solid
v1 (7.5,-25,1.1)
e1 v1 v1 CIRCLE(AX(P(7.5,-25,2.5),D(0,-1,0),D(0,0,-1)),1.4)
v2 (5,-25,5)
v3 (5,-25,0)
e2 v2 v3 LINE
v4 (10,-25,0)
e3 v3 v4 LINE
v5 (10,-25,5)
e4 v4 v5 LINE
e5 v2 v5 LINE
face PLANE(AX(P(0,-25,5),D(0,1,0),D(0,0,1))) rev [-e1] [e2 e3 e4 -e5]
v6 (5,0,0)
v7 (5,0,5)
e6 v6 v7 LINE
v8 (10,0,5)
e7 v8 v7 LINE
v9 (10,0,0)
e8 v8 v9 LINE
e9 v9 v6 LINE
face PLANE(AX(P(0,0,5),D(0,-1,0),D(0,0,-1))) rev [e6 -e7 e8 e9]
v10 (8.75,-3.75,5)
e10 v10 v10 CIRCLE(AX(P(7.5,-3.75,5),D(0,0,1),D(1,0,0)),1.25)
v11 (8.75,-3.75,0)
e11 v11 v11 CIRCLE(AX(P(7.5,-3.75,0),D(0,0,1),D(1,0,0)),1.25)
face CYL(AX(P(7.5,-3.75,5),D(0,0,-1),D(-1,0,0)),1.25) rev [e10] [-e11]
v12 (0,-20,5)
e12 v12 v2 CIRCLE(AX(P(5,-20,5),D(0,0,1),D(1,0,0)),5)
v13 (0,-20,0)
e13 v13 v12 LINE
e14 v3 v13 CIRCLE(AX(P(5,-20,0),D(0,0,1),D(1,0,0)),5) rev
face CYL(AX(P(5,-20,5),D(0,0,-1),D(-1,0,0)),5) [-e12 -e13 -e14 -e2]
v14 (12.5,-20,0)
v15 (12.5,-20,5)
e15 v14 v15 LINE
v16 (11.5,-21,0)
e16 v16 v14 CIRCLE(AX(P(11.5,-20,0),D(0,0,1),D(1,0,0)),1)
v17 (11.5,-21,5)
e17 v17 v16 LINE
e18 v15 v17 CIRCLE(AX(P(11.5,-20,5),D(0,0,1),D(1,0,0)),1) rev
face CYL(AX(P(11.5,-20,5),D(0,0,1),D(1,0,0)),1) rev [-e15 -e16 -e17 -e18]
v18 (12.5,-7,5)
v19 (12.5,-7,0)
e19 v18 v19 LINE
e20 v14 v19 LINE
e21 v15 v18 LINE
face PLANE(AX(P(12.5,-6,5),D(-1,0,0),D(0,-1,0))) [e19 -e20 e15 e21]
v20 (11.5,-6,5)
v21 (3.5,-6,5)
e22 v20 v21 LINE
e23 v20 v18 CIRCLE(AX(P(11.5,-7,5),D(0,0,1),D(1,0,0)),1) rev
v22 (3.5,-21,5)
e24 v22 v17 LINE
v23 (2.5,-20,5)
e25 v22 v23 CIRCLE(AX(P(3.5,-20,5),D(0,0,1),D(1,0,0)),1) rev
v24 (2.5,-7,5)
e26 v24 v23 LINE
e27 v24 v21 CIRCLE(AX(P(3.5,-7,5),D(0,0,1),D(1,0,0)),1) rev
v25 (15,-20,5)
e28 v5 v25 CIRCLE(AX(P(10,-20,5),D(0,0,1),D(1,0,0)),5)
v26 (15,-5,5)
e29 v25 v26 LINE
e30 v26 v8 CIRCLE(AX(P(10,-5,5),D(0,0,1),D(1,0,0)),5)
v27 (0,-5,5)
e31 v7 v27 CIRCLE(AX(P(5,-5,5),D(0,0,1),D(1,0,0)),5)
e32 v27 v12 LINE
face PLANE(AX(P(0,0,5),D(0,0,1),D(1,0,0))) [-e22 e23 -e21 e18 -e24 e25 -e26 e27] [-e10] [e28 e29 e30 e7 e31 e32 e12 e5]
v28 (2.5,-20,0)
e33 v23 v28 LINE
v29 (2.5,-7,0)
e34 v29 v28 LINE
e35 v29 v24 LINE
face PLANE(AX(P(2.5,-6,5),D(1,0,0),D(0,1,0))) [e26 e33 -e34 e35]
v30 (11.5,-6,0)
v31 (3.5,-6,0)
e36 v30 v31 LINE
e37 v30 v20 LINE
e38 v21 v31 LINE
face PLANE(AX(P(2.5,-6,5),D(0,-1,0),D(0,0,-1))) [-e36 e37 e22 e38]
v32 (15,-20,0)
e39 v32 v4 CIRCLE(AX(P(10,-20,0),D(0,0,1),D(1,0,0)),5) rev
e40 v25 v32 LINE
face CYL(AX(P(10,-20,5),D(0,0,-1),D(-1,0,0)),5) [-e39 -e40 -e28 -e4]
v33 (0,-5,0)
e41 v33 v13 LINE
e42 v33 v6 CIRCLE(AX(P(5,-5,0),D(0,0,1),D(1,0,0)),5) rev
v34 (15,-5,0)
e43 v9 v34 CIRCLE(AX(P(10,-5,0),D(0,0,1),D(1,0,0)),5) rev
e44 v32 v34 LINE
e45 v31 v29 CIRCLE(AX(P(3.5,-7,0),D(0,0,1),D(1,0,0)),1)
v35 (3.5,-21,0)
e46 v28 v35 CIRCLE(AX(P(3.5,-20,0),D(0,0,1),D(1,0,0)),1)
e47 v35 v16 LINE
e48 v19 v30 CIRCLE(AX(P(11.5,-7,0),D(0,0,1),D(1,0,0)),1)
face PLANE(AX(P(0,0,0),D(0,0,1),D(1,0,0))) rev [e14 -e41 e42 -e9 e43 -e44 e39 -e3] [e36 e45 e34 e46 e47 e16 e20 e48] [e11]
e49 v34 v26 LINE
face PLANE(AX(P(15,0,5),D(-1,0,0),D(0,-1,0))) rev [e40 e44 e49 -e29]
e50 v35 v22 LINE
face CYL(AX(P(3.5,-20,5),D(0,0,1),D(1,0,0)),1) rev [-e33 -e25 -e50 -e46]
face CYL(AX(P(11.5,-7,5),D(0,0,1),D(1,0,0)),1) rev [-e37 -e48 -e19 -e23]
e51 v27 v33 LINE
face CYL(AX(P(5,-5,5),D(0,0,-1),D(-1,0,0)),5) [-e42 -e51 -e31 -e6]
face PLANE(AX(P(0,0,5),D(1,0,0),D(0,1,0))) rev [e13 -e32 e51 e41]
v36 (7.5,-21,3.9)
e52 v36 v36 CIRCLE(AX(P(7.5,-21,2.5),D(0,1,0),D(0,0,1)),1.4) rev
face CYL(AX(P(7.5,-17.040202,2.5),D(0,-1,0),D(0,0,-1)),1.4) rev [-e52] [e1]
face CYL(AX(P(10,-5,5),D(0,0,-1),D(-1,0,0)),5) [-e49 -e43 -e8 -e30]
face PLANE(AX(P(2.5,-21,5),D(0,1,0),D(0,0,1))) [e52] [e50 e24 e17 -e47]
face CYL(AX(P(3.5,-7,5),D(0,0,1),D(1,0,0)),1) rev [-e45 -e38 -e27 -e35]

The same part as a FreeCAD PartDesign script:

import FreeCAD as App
import Part
import Sketcher


def edges_at(feature, points):
    """Names of the edges that pass closest to the given points."""
    edges = feature.Shape.Edges
    near = lambda p: min(range(len(edges)), key=lambda i: edges[i].distToShape(Part.Vertex(*p))[0])
    return sorted({f"Edge{near(p) + 1}" for p in points})


def add_polygon(sketch, points):
    """Adds a closed chain of lines whose ends are joined by coincident constraints."""
    first, n = sketch.GeometryCount, len(points)
    for a, b in zip(points, points[1:] + points[:1]):
        sketch.addGeometry(Part.LineSegment(App.Vector(*a, 0), App.Vector(*b, 0)), False)
    for i in range(n):
        sketch.addConstraint(Sketcher.Constraint("Coincident", first + i, 2, first + (i + 1) % n, 1))

doc = App.newDocument("Part")
body = doc.addObject("PartDesign::Body", "Body")

# Sketch on XY plane
sketch1 = body.newObject("Sketcher::SketchObject", "Sketch")
sketch1.AttachmentSupport = (doc.getObject("XY_Plane"), [""])
sketch1.MapMode = "FlatFace"
add_polygon(sketch1, [(0, 0), (0, -25), (15, -25), (15, 0)])  # lines 0-3
add_polygon(sketch1, [(12.5, -21), (2.5, -21), (2.5, -6), (12.5, -6)])  # lines 4-7
sketch1.addGeometry(Part.Circle(App.Vector(7.5, -3.8, 0), App.Vector(0, 0, 1), 1.2), False)  # 8
sketch1.addConstraint([
    Sketcher.Constraint("Vertical", 0),
    Sketcher.Constraint("Horizontal", 1),
    Sketcher.Constraint("Vertical", 2),
    Sketcher.Constraint("Horizontal", 3),
    Sketcher.Constraint("Horizontal", 4),
    Sketcher.Constraint("Vertical", 5),
    Sketcher.Constraint("Horizontal", 6),
    Sketcher.Constraint("Vertical", 7),
    Sketcher.Constraint("Coincident", 3, 2, -1, 1),
    Sketcher.Constraint("Equal", 3, 5),
    Sketcher.Constraint("Diameter", 8, 2.5),
    Sketcher.Constraint("DistanceX", 1, 1, 1, 2, 15.0),
    Sketcher.Constraint("DistanceX", 4, 2, 4, 1, 10.0),
    Sketcher.Constraint("DistanceY", 0, 2, 0, 1, 25.0),
    Sketcher.Constraint("DistanceY", 4, 2, -1, 1, 21.0),
    Sketcher.Constraint("DistanceX", 4, 2, 8, 3, 5.0),
    Sketcher.Constraint("DistanceX", -1, 1, 8, 3, 7.5),
    Sketcher.Constraint("DistanceY", 8, 3, -1, 1, 3.75),
])
pad1 = body.newObject("PartDesign::Pad", "Pad")
pad1.Profile = sketch1
pad1.Length = 5

# Sketch on XZ plane
sketch2 = body.newObject("Sketcher::SketchObject", "Sketch001")
sketch2.AttachmentSupport = (doc.getObject("XZ_Plane"), [""])
sketch2.MapMode = "FlatFace"
sketch2.AttachmentOffset = App.Placement(App.Vector(0, 0, 25), App.Rotation())
sketch2.addGeometry(Part.Circle(App.Vector(7.5, 2.5, 0), App.Vector(0, 0, 1), 1.4), False)
sketch2.addConstraint([
    Sketcher.Constraint("Diameter", 0, 2.8),
    Sketcher.Constraint("DistanceX", -1, 1, 0, 3, 7.5),
    Sketcher.Constraint("DistanceY", -1, 1, 0, 3, 2.5),
])
pocket1 = body.newObject("PartDesign::Pocket", "Pocket")
pocket1.Profile = sketch2
pocket1.Length = 4
doc.recompute()

fillet = body.newObject("PartDesign::Fillet", "Fillet")
fillet.Base = (pocket1, edges_at(pocket1, [
    (0, 0, 2.5),
    (15, 0, 2.5),
    (15, -25, 2.5),
    (0, -25, 2.5),
]))
fillet.Radius = 5
doc.recompute()

fillet2 = body.newObject("PartDesign::Fillet", "Fillet001")
fillet2.Base = (fillet, edges_at(fillet, [
    (12.5, -21, 2.5),
    (12.5, -6, 2.5),
    (2.5, -6, 2.5),
    (2.5, -21, 2.5),
]))
fillet2.Radius = 1

doc.recompute()
